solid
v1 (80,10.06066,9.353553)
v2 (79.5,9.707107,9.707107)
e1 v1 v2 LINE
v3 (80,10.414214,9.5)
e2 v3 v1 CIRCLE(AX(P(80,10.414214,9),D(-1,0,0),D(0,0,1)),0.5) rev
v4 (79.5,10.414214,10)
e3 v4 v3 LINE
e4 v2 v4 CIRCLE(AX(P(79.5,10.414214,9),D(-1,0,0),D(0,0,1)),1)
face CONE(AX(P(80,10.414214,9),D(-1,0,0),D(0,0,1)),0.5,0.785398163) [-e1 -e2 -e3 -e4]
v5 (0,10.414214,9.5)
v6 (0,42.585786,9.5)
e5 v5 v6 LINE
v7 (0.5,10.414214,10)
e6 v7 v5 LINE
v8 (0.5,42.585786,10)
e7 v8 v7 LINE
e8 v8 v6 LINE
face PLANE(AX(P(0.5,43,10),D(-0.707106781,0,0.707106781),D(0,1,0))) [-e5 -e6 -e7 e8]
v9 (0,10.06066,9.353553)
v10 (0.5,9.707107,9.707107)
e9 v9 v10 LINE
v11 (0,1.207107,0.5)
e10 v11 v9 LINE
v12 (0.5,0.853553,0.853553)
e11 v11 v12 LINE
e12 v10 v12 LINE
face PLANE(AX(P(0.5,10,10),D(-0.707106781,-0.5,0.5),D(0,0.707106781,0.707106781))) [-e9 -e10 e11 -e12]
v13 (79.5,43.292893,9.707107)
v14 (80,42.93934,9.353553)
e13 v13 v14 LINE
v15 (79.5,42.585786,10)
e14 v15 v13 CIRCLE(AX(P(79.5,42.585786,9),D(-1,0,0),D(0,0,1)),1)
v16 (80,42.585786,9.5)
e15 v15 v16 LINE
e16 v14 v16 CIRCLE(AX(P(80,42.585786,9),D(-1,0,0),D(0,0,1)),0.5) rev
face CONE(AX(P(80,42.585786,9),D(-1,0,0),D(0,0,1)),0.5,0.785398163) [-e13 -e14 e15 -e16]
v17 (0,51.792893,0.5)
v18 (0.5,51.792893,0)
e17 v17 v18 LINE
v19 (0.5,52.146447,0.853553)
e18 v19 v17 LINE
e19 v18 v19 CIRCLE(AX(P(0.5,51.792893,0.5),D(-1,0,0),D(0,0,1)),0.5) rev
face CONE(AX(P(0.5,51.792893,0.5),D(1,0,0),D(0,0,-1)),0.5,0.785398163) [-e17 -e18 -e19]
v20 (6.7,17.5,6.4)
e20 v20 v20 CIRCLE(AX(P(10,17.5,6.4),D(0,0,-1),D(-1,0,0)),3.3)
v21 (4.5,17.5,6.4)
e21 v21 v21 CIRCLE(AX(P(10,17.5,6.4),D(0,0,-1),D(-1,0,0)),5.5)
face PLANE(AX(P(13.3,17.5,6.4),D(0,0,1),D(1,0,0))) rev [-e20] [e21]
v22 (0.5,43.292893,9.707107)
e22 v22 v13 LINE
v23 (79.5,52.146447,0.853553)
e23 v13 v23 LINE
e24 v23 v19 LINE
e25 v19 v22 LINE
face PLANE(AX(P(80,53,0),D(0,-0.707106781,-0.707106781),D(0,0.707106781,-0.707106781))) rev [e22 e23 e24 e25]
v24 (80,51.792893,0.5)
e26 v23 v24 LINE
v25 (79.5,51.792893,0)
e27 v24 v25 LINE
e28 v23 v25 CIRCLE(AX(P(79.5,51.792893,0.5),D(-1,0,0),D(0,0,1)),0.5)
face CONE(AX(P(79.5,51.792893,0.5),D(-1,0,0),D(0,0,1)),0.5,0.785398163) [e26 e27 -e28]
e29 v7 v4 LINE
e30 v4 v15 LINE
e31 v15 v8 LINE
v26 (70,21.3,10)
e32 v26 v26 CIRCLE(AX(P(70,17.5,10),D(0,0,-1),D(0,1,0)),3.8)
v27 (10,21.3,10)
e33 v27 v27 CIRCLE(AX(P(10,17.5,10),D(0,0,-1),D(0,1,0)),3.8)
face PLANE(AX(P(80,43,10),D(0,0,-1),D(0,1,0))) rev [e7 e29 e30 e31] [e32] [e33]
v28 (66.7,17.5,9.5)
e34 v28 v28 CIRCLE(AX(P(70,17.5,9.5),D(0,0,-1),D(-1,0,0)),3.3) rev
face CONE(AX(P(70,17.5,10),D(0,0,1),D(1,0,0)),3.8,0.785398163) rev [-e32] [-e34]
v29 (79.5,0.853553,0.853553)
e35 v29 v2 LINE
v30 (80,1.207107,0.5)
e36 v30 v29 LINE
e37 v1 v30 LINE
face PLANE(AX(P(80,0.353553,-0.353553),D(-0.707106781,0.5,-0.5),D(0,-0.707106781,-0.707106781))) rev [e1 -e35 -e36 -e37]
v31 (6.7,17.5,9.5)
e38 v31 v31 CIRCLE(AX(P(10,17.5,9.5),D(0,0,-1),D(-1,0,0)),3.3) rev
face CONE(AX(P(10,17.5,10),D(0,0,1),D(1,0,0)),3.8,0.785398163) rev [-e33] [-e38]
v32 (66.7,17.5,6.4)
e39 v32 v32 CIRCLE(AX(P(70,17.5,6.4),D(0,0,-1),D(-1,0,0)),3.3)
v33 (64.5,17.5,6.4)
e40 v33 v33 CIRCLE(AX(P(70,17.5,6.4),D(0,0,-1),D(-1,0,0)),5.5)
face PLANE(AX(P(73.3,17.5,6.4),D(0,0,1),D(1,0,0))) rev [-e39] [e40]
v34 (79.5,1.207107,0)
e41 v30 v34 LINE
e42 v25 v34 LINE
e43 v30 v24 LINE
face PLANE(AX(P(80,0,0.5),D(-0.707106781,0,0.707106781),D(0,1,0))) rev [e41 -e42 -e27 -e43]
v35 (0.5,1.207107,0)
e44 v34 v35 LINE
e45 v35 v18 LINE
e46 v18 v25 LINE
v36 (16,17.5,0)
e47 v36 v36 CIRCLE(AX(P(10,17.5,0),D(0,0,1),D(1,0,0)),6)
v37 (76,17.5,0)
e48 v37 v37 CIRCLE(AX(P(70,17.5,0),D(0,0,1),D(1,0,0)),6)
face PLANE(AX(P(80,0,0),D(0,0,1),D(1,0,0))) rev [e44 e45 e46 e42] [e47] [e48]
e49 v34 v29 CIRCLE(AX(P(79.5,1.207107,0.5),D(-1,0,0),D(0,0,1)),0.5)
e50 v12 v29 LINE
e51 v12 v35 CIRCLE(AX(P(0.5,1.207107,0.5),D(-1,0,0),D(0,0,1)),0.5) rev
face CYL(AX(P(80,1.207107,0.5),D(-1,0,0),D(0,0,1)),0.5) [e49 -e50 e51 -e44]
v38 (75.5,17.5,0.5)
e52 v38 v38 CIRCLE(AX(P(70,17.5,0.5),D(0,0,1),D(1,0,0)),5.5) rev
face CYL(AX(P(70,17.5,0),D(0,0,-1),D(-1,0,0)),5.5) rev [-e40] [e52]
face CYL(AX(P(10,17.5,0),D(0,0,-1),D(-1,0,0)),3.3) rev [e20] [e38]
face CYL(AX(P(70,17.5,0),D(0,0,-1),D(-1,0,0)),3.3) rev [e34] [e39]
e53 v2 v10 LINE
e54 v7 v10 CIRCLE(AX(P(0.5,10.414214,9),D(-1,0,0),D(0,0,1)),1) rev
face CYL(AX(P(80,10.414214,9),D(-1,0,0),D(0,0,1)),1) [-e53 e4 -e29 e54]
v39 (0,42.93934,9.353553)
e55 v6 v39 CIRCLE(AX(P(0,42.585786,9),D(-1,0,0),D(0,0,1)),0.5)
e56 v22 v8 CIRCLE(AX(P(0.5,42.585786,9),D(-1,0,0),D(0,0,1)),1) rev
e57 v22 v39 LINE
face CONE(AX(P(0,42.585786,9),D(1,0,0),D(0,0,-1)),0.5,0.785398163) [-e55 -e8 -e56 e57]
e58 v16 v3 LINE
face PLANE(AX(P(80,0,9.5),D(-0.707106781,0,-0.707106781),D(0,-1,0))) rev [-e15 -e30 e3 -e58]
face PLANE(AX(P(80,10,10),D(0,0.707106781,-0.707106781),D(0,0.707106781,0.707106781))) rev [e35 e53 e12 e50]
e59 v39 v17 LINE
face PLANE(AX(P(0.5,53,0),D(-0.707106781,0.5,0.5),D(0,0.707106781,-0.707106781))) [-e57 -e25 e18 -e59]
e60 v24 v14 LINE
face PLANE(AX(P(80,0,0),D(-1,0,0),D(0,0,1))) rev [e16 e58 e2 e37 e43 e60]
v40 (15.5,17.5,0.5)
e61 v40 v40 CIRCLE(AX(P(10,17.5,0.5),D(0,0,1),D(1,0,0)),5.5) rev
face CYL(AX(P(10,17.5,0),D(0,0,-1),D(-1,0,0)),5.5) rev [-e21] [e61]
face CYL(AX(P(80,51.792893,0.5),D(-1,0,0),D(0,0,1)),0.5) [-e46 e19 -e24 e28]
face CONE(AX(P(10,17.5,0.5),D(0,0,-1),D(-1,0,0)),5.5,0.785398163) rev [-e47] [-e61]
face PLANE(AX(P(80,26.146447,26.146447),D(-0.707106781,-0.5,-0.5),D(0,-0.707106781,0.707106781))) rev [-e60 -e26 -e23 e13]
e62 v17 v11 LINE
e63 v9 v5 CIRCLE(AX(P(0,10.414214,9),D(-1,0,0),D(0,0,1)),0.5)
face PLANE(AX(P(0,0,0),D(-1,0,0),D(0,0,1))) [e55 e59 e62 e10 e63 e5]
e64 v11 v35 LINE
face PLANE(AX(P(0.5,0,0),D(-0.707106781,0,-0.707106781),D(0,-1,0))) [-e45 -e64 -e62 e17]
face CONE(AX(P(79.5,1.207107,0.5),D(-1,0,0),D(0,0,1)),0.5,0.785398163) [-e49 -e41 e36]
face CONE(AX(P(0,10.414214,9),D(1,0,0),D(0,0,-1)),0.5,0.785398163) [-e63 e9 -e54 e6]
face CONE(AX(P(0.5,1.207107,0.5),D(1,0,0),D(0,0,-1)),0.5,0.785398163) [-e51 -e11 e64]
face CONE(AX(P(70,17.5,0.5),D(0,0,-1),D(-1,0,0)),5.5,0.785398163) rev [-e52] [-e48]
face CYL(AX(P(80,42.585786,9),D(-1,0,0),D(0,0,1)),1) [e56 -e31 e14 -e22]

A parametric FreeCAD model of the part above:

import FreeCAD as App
import Part
import Sketcher
Q = App.Units.Quantity


def edges_at(feature, points):
    """Names of the edges that pass closest to the given points."""
    edges = feature.Shape.Edges
    near = lambda p: min(range(len(edges)), key=lambda i: edges[i].distToShape(Part.Vertex(*p))[0])
    return sorted({f"Edge{near(p) + 1}" for p in points})

doc = App.newDocument("Part")
body = doc.addObject("PartDesign::Body", "Body")

# Sketch on YZ plane
sketch1 = body.newObject("Sketcher::SketchObject", "Sketch")
sketch1.AttachmentSupport = (doc.getObject("YZ_Plane"), [""])
sketch1.MapMode = "FlatFace"
sketch1.addGeometry(Part.LineSegment(App.Vector(0, 0, 0), App.Vector(53, 0, 0)), False)
sketch1.addGeometry(Part.LineSegment(App.Vector(53, 0, 0), App.Vector(43, 10, 0)), False)
sketch1.addGeometry(Part.LineSegment(App.Vector(43, 10, 0), App.Vector(10, 10, 0)), False)
sketch1.addGeometry(Part.LineSegment(App.Vector(10, 10, 0), App.Vector(0, 0, 0)), False)
sketch1.addConstraint(Sketcher.Constraint("Coincident", 0, 2, 1, 1))
sketch1.addConstraint(Sketcher.Constraint("Coincident", 1, 2, 2, 1))
sketch1.addConstraint(Sketcher.Constraint("Coincident", 2, 2, 3, 1))
sketch1.addConstraint(Sketcher.Constraint("Coincident", 3, 2, 0, 1))
sketch1.addConstraint(Sketcher.Constraint("Horizontal", 0))
sketch1.addConstraint(Sketcher.Constraint("Horizontal", 2))
sketch1.addConstraint(Sketcher.Constraint("Coincident", 3, 2, -1, 1))
sketch1.addConstraint(Sketcher.Constraint("Perpendicular", 1, 3))
sketch1.addConstraint(Sketcher.Constraint("Equal", 1, 3))
sketch1.addConstraint(Sketcher.Constraint("DistanceX", 0, 1, 0, 2, Q("53 mm")))
sketch1.addConstraint(Sketcher.Constraint("DistanceX", 2, 2, 2, 1, Q("33 mm")))
pad1 = body.newObject("PartDesign::Pad", "Pad")
pad1.Profile = sketch1
pad1.Length = 80

# Sketch on XY plane
sketch2 = body.newObject("Sketcher::SketchObject", "Sketch001")
sketch2.AttachmentSupport = (doc.getObject("XY_Plane"), [""])
sketch2.MapMode = "FlatFace"
sketch2.addGeometry(Part.Circle(App.Vector(70, 17.5, 0), App.Vector(0, 0, 1), 3.3), False)
sketch2.addGeometry(Part.Circle(App.Vector(10, 17.5, 0), App.Vector(0, 0, 1), 3.3), False)
sketch2.addConstraint(Sketcher.Constraint("Equal", 0, 1))
sketch2.addConstraint(Sketcher.Constraint("Horizontal", 0, 3, 1, 3))
sketch2.addConstraint(Sketcher.Constraint("Diameter", 0, Q("6.6 mm")))
sketch2.addConstraint(Sketcher.Constraint("DistanceX", -1, 1, 0, 3, Q("70 mm")))
sketch2.addConstraint(Sketcher.Constraint("DistanceX", -1, 1, 1, 3, Q("10 mm")))
sketch2.addConstraint(Sketcher.Constraint("DistanceY", -1, 1, 0, 3, Q("17.5 mm")))
doc.recompute()
hole = body.newObject("PartDesign::Hole", "Hole")
hole.Profile = sketch2
hole.ThreadType = "None"
hole.Diameter = 6.6
hole.DepthType = "ThroughAll"
hole.HoleCutType = "Counterbore"
hole.HoleCutDiameter = 11
hole.HoleCutDepth = 6.4
hole.Reversed = True
doc.recompute()

fillet = body.newObject("PartDesign::Fillet", "Fillet")
fillet.Base = (hole, edges_at(hole, [(40, 53, 0), (40, 0, 0)]))
fillet.Radius = 0.5
doc.recompute()

fillet2 = body.newObject("PartDesign::Fillet", "Fillet001")
fillet2.Base = (fillet, edges_at(fillet, [(40, 10, 10), (40, 43, 10)]))
fillet2.Radius = 1
doc.recompute()

chamfer = body.newObject("PartDesign::Chamfer", "Chamfer")
chamfer.Base = (fillet2, edges_at(fillet2, [
    (6.7, 17.5, 10),
    (66.7, 17.5, 10),
    (0, 47.72, 5.28),
    (80, 47.72, 5.28),
    (0, 26.5, 0),
    (0, 0.745, 0.309),
    (0, 52.255, 0.309),
    (80, 26.5, 0),
    (80, 0.745, 0.309),
    (80, 52.255, 0.309),
    (0, 26.5, 10),
    (80, 26.5, 10),
    (0, 5.28, 5.28),
    (0, 10.032, 9.924),
    (0, 42.968, 9.924),
    (80, 5.28, 5.28),
    (80, 10.032, 9.924),
    (80, 42.968, 9.924),
]))
chamfer.Size = 0.5
doc.recompute()

chamfer2 = body.newObject("PartDesign::Chamfer", "Chamfer001")
chamfer2.Base = (chamfer, edges_at(chamfer, [(15.5, 17.5, 0), (75.5, 17.5, 0)]))
chamfer2.Size = 0.5

doc.recompute()
